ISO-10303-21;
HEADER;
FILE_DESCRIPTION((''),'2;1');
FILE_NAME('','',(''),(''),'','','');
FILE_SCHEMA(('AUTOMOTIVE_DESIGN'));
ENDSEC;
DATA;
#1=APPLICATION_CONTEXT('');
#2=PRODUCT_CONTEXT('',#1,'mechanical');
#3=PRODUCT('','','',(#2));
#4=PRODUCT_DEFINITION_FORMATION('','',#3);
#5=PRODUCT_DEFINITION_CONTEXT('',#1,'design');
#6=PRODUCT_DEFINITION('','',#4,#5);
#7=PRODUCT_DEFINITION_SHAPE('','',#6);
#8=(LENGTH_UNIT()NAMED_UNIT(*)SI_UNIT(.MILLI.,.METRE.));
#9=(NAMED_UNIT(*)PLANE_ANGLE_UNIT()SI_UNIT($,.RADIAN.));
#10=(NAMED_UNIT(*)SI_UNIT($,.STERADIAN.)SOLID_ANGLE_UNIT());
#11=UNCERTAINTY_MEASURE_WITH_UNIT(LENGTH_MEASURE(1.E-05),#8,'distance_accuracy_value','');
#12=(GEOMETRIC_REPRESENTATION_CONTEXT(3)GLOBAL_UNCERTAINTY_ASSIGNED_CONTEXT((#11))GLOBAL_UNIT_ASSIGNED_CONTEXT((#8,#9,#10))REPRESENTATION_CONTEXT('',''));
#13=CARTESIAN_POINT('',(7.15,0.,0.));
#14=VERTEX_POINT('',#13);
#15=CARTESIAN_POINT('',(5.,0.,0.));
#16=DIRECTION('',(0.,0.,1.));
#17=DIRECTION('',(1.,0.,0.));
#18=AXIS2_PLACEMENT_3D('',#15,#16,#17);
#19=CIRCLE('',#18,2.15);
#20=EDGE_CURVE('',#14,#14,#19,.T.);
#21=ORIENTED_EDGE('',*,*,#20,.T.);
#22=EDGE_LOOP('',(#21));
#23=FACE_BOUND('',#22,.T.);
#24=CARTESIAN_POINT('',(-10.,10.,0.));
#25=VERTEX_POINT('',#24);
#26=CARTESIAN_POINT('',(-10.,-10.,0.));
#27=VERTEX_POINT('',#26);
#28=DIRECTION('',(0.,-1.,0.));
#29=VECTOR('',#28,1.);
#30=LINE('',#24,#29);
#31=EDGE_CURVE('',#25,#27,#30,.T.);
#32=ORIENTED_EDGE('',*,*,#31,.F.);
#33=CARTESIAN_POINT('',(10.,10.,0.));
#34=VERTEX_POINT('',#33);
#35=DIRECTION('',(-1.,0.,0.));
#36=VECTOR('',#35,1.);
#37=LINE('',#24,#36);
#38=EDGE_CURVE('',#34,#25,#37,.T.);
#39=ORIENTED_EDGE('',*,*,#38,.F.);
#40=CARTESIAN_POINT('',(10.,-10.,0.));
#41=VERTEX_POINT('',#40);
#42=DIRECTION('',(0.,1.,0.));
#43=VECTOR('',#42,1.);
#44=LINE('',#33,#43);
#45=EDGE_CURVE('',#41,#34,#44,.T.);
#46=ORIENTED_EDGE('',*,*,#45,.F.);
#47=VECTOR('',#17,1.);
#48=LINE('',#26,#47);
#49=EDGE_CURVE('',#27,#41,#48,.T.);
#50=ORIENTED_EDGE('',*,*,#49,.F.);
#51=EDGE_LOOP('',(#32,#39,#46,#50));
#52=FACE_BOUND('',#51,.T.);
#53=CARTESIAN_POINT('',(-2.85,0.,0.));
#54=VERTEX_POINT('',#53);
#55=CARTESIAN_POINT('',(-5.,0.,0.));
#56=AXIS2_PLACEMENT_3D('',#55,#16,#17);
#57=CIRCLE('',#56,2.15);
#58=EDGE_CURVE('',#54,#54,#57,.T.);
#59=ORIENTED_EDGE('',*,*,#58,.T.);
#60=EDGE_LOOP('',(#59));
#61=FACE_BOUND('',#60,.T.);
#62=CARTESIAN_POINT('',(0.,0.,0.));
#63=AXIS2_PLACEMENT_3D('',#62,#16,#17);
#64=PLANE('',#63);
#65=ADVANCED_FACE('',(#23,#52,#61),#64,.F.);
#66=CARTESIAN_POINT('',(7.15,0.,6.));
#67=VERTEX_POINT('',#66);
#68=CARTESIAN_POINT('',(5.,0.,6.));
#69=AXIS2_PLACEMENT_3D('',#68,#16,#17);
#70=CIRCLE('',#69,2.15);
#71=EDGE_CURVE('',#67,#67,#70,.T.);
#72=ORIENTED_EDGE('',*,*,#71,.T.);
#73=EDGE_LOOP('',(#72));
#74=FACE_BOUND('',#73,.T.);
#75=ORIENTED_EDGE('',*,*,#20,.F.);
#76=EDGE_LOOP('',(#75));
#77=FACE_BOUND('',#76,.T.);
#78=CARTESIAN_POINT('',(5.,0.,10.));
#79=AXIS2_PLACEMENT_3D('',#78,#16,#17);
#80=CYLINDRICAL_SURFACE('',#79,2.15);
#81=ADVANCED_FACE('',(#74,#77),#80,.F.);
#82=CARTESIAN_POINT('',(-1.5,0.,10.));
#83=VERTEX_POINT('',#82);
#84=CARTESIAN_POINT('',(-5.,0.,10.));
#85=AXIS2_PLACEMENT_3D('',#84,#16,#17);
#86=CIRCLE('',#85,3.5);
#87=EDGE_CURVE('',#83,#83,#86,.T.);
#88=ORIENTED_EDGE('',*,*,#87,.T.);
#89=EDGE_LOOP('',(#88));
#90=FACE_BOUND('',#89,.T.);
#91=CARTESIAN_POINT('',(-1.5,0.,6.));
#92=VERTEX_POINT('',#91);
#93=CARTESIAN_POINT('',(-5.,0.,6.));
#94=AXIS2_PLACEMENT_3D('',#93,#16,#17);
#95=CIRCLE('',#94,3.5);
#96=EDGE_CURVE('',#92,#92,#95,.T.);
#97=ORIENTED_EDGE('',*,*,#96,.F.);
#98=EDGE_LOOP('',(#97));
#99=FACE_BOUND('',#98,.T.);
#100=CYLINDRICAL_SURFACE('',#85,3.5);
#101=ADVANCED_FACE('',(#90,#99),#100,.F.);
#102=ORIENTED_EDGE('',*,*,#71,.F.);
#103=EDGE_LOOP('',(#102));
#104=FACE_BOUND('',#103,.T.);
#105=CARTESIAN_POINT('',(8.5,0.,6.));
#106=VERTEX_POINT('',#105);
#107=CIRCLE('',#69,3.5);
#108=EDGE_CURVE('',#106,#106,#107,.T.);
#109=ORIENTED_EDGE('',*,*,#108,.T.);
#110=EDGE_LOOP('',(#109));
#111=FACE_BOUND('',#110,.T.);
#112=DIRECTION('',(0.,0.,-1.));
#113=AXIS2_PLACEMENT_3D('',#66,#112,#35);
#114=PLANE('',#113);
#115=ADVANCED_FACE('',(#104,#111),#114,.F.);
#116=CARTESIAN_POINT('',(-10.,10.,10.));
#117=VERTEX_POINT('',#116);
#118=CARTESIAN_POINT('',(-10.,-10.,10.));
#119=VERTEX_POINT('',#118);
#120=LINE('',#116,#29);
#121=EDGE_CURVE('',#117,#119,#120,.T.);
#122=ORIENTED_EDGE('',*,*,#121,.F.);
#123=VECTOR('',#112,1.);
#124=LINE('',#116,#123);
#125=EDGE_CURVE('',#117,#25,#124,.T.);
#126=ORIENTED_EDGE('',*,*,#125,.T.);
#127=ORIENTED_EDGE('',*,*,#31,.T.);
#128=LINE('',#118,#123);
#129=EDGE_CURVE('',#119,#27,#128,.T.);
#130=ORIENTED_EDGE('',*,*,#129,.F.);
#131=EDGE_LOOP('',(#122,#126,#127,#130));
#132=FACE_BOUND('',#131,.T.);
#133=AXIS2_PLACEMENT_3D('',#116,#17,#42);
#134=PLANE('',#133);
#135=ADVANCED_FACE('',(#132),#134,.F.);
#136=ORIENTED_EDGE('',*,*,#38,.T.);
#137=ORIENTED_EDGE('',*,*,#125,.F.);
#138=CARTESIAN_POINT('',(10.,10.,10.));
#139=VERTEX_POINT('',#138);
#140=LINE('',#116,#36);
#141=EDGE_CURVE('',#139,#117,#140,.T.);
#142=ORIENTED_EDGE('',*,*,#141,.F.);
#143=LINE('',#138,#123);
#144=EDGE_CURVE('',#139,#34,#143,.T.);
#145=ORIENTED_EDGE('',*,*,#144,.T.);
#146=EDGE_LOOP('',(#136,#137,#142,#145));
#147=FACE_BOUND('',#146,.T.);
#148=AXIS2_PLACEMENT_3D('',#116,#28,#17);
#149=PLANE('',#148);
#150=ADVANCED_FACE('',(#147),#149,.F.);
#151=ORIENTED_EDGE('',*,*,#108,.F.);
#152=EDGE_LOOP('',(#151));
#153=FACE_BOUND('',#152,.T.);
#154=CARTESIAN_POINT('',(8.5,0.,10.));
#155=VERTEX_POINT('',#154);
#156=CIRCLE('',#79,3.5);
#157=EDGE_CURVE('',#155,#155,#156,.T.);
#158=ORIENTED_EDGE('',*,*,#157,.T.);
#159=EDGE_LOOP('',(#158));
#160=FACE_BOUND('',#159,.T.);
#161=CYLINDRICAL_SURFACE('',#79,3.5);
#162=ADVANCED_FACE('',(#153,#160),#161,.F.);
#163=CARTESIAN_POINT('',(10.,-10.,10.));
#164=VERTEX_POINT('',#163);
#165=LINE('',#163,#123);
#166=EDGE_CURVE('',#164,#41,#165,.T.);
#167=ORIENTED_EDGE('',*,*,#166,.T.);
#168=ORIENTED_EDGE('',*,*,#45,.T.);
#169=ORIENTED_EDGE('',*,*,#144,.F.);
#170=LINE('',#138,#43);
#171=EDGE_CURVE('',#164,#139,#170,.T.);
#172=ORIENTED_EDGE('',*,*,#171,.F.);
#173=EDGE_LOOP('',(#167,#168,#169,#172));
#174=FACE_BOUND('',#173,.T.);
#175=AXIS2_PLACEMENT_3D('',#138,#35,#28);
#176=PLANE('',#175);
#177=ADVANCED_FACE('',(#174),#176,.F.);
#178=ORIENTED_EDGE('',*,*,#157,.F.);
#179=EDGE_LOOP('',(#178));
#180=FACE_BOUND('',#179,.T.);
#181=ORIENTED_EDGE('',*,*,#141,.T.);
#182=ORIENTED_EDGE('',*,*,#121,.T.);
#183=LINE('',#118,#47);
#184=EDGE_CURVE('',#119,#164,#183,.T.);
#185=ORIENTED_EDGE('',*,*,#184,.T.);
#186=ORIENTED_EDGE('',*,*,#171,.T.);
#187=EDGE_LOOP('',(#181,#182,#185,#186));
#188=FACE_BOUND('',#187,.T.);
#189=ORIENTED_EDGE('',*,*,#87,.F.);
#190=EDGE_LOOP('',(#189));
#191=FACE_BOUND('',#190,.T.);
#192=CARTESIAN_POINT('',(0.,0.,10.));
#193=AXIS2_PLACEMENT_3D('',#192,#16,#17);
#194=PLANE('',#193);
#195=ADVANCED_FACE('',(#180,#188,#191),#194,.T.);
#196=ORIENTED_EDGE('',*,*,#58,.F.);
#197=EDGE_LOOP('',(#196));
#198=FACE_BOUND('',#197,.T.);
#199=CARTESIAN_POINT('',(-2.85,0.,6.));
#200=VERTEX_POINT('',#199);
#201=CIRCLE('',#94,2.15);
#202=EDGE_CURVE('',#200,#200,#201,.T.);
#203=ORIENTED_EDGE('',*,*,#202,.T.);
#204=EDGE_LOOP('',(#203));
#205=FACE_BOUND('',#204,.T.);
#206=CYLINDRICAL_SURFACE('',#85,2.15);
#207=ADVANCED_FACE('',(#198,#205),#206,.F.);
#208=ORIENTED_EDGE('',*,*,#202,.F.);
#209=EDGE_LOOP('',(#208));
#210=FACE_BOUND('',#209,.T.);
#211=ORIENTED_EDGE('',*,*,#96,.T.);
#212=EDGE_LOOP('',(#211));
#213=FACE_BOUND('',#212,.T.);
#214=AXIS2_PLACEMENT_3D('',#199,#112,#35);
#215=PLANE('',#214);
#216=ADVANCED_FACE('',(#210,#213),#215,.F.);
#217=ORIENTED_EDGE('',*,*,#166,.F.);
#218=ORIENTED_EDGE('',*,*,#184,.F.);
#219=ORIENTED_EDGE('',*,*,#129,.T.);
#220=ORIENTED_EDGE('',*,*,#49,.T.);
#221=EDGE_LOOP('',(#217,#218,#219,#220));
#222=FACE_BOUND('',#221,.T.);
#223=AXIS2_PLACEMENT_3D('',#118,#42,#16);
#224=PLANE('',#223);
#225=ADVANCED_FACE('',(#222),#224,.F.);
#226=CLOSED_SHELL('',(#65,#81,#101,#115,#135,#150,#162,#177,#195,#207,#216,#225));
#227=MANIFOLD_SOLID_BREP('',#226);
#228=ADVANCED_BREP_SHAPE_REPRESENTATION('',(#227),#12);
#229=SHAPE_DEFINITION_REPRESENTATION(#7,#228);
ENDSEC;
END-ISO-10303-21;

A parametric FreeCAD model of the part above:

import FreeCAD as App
import Part
import Sketcher

V = App.Vector


def add_polygon(sketch, points):
    """Adds a closed chain of lines whose ends are joined by coincident constraints."""
    first, n = sketch.GeometryCount, len(points)
    for a, b in zip(points, points[1:] + points[:1]):
        sketch.addGeometry(Part.LineSegment(App.Vector(*a, 0), App.Vector(*b, 0)), False)
    for i in range(n):
        sketch.addConstraint(Sketcher.Constraint("Coincident", first + i, 2, first + (i + 1) % n, 1))

doc = App.newDocument("Part")
body = doc.addObject("PartDesign::Body", "Body")

# Sketch on XY plane
sketch1 = body.newObject("Sketcher::SketchObject", "Sketch")
sketch1.AttachmentSupport = (doc.getObject("XY_Plane"), [""])
sketch1.MapMode = "FlatFace"
add_polygon(sketch1, [(-10, 10), (-10, -10), (10, -10), (10, 10)])  # lines 0-3
sketch1.addConstraint([
    Sketcher.Constraint("Vertical", 0),
    Sketcher.Constraint("Horizontal", 1),
    Sketcher.Constraint("Vertical", 2),
    Sketcher.Constraint("Horizontal", 3),
    Sketcher.Constraint("Symmetric", 0, 2, 2, 2, -1, 1),
    Sketcher.Constraint("Equal", 3, 0),
    Sketcher.Constraint("DistanceX", 1, 1, 1, 2, 20.0),
])
pad1 = body.newObject("PartDesign::Pad", "Pad")
pad1.Profile = sketch1
pad1.Length = 10

# Sketch on XY plane
sketch2 = body.newObject("Sketcher::SketchObject", "Sketch001")
sketch2.AttachmentSupport = (doc.getObject("XY_Plane"), [""])
sketch2.MapMode = "FlatFace"
sketch2.AttachmentOffset = App.Placement(V(0, 0, 10), App.Rotation())
sketch2.addGeometry([
    Part.Circle(V(5, 0, 0), V(0, 0, 1), 2.15),
    Part.Circle(V(-5, 0, 0), V(0, 0, 1), 2.15),
], False)
sketch2.addConstraint([
    Sketcher.Constraint("Equal", 0, 1),
    Sketcher.Constraint("Symmetric", 0, 3, 1, 3, -1, 1),
    Sketcher.Constraint("PointOnObject", 0, 3, -1),
    Sketcher.Constraint("Diameter", 0, 4.3),
    Sketcher.Constraint("DistanceX", -1, 1, 0, 3, 5.0),
])
doc.recompute()
hole = body.newObject("PartDesign::Hole", "Hole")
hole.Profile = sketch2
hole.ThreadType = "None"
hole.Diameter = 4.3
hole.DepthType = "ThroughAll"
hole.HoleCutType = "Counterbore"
hole.HoleCutDiameter = 7
hole.HoleCutDepth = 4

doc.recompute()
